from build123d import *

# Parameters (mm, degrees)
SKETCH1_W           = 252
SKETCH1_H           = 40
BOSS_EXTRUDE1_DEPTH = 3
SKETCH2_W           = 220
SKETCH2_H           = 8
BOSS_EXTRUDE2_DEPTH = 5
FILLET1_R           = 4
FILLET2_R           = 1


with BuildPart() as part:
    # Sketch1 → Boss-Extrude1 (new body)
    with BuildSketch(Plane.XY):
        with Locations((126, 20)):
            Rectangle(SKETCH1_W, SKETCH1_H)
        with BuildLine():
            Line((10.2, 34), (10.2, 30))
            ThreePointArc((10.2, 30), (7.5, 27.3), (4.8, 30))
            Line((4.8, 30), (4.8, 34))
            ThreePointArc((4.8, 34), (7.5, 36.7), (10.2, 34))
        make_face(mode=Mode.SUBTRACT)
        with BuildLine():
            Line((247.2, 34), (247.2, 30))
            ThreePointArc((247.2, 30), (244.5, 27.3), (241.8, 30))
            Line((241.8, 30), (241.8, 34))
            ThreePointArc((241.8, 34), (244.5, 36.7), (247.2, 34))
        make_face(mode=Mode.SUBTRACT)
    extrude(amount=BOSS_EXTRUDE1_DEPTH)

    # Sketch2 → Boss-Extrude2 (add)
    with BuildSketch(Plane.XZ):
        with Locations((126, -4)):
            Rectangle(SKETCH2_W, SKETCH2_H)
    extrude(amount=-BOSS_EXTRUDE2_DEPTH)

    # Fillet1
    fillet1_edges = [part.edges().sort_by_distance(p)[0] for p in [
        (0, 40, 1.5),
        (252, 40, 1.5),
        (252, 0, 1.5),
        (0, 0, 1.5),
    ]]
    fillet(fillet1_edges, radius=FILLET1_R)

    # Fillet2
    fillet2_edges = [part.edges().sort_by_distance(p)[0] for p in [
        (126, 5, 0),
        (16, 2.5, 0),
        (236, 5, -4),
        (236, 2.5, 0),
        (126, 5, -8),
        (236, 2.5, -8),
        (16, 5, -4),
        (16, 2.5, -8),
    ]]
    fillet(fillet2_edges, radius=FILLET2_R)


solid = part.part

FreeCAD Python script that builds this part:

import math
import FreeCAD as App
import Part
import Sketcher


def edges_at(feature, points):
    """Names of the edges that pass closest to the given points."""
    edges = feature.Shape.Edges
    near = lambda p: min(range(len(edges)), key=lambda i: edges[i].distToShape(Part.Vertex(*p))[0])
    return sorted({f"Edge{near(p) + 1}" for p in points})

doc = App.newDocument("Part")
body = doc.addObject("PartDesign::Body", "Body")

sketch1 = body.newObject("Sketcher::SketchObject", "Sketch")
sketch1.AttachmentSupport = (doc.getObject("XY_Plane"), [""])
sketch1.MapMode = "FlatFace"
sketch1.addGeometry([
    Part.LineSegment(App.Vector(0, 40, 0), App.Vector(0, 0, 0)),
    Part.LineSegment(App.Vector(0, 0, 0), App.Vector(252, 0, 0)),
    Part.LineSegment(App.Vector(252, 0, 0), App.Vector(252, 40, 0)),
    Part.LineSegment(App.Vector(252, 40, 0), App.Vector(0, 40, 0)),
    Part.ArcOfCircle(Part.Circle(App.Vector(7.5, 34, 0), App.Vector(0, 0, 1), 2.7), math.radians(0), math.radians(180)),
    Part.LineSegment(App.Vector(10.2, 34, 0), App.Vector(10.2, 30, 0)),
    Part.ArcOfCircle(Part.Circle(App.Vector(7.5, 30, 0), App.Vector(0, 0, 1), 2.7), math.radians(180), math.radians(360)),
    Part.LineSegment(App.Vector(4.8, 30, 0), App.Vector(4.8, 34, 0)),
    Part.ArcOfCircle(Part.Circle(App.Vector(244.5, 34, 0), App.Vector(0, 0, 1), 2.7), math.radians(0), math.radians(180)),
    Part.LineSegment(App.Vector(247.2, 34, 0), App.Vector(247.2, 30, 0)),
    Part.ArcOfCircle(Part.Circle(App.Vector(244.5, 30, 0), App.Vector(0, 0, 1), 2.7), math.radians(180), math.radians(360)),
    Part.LineSegment(App.Vector(241.8, 30, 0), App.Vector(241.8, 34, 0)),
], False)
sketch1.addConstraint([
    Sketcher.Constraint("Coincident", 0, 2, 1, 1),
    Sketcher.Constraint("Coincident", 1, 2, 2, 1),
    Sketcher.Constraint("Coincident", 2, 2, 3, 1),
    Sketcher.Constraint("Coincident", 3, 2, 0, 1),
    Sketcher.Constraint("Tangent", 4, 1, 5, 1),
    Sketcher.Constraint("Tangent", 5, 2, 6, 2),
    Sketcher.Constraint("Tangent", 6, 1, 7, 1),
    Sketcher.Constraint("Tangent", 7, 2, 4, 2),
    Sketcher.Constraint("Tangent", 8, 1, 9, 1),
    Sketcher.Constraint("Tangent", 9, 2, 10, 2),
    Sketcher.Constraint("Tangent", 10, 1, 11, 1),
    Sketcher.Constraint("Tangent", 11, 2, 8, 2),
    Sketcher.Constraint("Vertical", 0),
    Sketcher.Constraint("Horizontal", 1),
    Sketcher.Constraint("Vertical", 2),
    Sketcher.Constraint("Horizontal", 3),
    Sketcher.Constraint("Vertical", 5),
    Sketcher.Constraint("Vertical", 7),
    Sketcher.Constraint("Vertical", 9),
    Sketcher.Constraint("Vertical", 11),
    Sketcher.Constraint("Coincident", 0, 2, -1, 1),
    Sketcher.Constraint("Equal", 6, 8),
    Sketcher.Constraint("Horizontal", 4, 3, 8, 3),
    Sketcher.Constraint("Horizontal", 6, 3, 10, 3),
    Sketcher.Constraint("Radius", 4, 2.7),
    Sketcher.Constraint("DistanceX", 1, 1, 1, 2, 252.0),
    Sketcher.Constraint("DistanceY", 0, 2, 0, 1, 40.0),
    Sketcher.Constraint("DistanceY", 5, 2, 5, 1, 4.0),
    Sketcher.Constraint("DistanceY", -1, 1, 4, 3, 34.0),
    Sketcher.Constraint("DistanceX", 4, 3, 8, 3, 237.0),
    Sketcher.Constraint("DistanceX", -1, 1, 4, 3, 7.5),
])
pad1 = body.newObject("PartDesign::Pad", "Pad")
pad1.Profile = sketch1
pad1.Length = 3

sketch2 = body.newObject("Sketcher::SketchObject", "Sketch001")
sketch2.AttachmentSupport = (doc.getObject("XZ_Plane"), [""])
sketch2.MapMode = "FlatFace"
sketch2.addGeometry([
    Part.LineSegment(App.Vector(16, 0, 0), App.Vector(16, -8, 0)),
    Part.LineSegment(App.Vector(16, -8, 0), App.Vector(236, -8, 0)),
    Part.LineSegment(App.Vector(236, -8, 0), App.Vector(236, 0, 0)),
    Part.LineSegment(App.Vector(236, 0, 0), App.Vector(16, 0, 0)),
], False)
sketch2.addConstraint([
    Sketcher.Constraint("Coincident", 0, 2, 1, 1),
    Sketcher.Constraint("Coincident", 1, 2, 2, 1),
    Sketcher.Constraint("Coincident", 2, 2, 3, 1),
    Sketcher.Constraint("Coincident", 3, 2, 0, 1),
    Sketcher.Constraint("Vertical", 0),
    Sketcher.Constraint("Horizontal", 1),
    Sketcher.Constraint("Vertical", 2),
    Sketcher.Constraint("Horizontal", 3),
    Sketcher.Constraint("PointOnObject", 2, 2, -1),
    Sketcher.Constraint("DistanceX", 1, 1, 1, 2, 220.0),
    Sketcher.Constraint("DistanceY", 0, 2, 0, 1, 8.0),
    Sketcher.Constraint("DistanceX", -1, 1, 0, 2, 16.0),
])
pad2 = body.newObject("PartDesign::Pad", "Pad001")
pad2.Profile = sketch2
pad2.Length = 5
pad2.Reversed = True
doc.recompute()

fillet = body.newObject("PartDesign::Fillet", "Fillet")
fillet.Base = (pad2, edges_at(pad2, [
    (0, 40, 1.5),
    (252, 40, 1.5),
    (252, 0, 1.5),
    (0, 0, 1.5),
]))
fillet.Radius = 4
doc.recompute()

fillet2 = body.newObject("PartDesign::Fillet", "Fillet001")
fillet2.Base = (fillet, edges_at(fillet, [
    (126, 5, 0),
    (16, 2.5, 0),
    (236, 5, -4),
    (236, 2.5, 0),
    (126, 5, -8),
    (236, 2.5, -8),
    (16, 5, -4),
    (16, 2.5, -8),
]))
fillet2.Radius = 1

doc.recompute()
